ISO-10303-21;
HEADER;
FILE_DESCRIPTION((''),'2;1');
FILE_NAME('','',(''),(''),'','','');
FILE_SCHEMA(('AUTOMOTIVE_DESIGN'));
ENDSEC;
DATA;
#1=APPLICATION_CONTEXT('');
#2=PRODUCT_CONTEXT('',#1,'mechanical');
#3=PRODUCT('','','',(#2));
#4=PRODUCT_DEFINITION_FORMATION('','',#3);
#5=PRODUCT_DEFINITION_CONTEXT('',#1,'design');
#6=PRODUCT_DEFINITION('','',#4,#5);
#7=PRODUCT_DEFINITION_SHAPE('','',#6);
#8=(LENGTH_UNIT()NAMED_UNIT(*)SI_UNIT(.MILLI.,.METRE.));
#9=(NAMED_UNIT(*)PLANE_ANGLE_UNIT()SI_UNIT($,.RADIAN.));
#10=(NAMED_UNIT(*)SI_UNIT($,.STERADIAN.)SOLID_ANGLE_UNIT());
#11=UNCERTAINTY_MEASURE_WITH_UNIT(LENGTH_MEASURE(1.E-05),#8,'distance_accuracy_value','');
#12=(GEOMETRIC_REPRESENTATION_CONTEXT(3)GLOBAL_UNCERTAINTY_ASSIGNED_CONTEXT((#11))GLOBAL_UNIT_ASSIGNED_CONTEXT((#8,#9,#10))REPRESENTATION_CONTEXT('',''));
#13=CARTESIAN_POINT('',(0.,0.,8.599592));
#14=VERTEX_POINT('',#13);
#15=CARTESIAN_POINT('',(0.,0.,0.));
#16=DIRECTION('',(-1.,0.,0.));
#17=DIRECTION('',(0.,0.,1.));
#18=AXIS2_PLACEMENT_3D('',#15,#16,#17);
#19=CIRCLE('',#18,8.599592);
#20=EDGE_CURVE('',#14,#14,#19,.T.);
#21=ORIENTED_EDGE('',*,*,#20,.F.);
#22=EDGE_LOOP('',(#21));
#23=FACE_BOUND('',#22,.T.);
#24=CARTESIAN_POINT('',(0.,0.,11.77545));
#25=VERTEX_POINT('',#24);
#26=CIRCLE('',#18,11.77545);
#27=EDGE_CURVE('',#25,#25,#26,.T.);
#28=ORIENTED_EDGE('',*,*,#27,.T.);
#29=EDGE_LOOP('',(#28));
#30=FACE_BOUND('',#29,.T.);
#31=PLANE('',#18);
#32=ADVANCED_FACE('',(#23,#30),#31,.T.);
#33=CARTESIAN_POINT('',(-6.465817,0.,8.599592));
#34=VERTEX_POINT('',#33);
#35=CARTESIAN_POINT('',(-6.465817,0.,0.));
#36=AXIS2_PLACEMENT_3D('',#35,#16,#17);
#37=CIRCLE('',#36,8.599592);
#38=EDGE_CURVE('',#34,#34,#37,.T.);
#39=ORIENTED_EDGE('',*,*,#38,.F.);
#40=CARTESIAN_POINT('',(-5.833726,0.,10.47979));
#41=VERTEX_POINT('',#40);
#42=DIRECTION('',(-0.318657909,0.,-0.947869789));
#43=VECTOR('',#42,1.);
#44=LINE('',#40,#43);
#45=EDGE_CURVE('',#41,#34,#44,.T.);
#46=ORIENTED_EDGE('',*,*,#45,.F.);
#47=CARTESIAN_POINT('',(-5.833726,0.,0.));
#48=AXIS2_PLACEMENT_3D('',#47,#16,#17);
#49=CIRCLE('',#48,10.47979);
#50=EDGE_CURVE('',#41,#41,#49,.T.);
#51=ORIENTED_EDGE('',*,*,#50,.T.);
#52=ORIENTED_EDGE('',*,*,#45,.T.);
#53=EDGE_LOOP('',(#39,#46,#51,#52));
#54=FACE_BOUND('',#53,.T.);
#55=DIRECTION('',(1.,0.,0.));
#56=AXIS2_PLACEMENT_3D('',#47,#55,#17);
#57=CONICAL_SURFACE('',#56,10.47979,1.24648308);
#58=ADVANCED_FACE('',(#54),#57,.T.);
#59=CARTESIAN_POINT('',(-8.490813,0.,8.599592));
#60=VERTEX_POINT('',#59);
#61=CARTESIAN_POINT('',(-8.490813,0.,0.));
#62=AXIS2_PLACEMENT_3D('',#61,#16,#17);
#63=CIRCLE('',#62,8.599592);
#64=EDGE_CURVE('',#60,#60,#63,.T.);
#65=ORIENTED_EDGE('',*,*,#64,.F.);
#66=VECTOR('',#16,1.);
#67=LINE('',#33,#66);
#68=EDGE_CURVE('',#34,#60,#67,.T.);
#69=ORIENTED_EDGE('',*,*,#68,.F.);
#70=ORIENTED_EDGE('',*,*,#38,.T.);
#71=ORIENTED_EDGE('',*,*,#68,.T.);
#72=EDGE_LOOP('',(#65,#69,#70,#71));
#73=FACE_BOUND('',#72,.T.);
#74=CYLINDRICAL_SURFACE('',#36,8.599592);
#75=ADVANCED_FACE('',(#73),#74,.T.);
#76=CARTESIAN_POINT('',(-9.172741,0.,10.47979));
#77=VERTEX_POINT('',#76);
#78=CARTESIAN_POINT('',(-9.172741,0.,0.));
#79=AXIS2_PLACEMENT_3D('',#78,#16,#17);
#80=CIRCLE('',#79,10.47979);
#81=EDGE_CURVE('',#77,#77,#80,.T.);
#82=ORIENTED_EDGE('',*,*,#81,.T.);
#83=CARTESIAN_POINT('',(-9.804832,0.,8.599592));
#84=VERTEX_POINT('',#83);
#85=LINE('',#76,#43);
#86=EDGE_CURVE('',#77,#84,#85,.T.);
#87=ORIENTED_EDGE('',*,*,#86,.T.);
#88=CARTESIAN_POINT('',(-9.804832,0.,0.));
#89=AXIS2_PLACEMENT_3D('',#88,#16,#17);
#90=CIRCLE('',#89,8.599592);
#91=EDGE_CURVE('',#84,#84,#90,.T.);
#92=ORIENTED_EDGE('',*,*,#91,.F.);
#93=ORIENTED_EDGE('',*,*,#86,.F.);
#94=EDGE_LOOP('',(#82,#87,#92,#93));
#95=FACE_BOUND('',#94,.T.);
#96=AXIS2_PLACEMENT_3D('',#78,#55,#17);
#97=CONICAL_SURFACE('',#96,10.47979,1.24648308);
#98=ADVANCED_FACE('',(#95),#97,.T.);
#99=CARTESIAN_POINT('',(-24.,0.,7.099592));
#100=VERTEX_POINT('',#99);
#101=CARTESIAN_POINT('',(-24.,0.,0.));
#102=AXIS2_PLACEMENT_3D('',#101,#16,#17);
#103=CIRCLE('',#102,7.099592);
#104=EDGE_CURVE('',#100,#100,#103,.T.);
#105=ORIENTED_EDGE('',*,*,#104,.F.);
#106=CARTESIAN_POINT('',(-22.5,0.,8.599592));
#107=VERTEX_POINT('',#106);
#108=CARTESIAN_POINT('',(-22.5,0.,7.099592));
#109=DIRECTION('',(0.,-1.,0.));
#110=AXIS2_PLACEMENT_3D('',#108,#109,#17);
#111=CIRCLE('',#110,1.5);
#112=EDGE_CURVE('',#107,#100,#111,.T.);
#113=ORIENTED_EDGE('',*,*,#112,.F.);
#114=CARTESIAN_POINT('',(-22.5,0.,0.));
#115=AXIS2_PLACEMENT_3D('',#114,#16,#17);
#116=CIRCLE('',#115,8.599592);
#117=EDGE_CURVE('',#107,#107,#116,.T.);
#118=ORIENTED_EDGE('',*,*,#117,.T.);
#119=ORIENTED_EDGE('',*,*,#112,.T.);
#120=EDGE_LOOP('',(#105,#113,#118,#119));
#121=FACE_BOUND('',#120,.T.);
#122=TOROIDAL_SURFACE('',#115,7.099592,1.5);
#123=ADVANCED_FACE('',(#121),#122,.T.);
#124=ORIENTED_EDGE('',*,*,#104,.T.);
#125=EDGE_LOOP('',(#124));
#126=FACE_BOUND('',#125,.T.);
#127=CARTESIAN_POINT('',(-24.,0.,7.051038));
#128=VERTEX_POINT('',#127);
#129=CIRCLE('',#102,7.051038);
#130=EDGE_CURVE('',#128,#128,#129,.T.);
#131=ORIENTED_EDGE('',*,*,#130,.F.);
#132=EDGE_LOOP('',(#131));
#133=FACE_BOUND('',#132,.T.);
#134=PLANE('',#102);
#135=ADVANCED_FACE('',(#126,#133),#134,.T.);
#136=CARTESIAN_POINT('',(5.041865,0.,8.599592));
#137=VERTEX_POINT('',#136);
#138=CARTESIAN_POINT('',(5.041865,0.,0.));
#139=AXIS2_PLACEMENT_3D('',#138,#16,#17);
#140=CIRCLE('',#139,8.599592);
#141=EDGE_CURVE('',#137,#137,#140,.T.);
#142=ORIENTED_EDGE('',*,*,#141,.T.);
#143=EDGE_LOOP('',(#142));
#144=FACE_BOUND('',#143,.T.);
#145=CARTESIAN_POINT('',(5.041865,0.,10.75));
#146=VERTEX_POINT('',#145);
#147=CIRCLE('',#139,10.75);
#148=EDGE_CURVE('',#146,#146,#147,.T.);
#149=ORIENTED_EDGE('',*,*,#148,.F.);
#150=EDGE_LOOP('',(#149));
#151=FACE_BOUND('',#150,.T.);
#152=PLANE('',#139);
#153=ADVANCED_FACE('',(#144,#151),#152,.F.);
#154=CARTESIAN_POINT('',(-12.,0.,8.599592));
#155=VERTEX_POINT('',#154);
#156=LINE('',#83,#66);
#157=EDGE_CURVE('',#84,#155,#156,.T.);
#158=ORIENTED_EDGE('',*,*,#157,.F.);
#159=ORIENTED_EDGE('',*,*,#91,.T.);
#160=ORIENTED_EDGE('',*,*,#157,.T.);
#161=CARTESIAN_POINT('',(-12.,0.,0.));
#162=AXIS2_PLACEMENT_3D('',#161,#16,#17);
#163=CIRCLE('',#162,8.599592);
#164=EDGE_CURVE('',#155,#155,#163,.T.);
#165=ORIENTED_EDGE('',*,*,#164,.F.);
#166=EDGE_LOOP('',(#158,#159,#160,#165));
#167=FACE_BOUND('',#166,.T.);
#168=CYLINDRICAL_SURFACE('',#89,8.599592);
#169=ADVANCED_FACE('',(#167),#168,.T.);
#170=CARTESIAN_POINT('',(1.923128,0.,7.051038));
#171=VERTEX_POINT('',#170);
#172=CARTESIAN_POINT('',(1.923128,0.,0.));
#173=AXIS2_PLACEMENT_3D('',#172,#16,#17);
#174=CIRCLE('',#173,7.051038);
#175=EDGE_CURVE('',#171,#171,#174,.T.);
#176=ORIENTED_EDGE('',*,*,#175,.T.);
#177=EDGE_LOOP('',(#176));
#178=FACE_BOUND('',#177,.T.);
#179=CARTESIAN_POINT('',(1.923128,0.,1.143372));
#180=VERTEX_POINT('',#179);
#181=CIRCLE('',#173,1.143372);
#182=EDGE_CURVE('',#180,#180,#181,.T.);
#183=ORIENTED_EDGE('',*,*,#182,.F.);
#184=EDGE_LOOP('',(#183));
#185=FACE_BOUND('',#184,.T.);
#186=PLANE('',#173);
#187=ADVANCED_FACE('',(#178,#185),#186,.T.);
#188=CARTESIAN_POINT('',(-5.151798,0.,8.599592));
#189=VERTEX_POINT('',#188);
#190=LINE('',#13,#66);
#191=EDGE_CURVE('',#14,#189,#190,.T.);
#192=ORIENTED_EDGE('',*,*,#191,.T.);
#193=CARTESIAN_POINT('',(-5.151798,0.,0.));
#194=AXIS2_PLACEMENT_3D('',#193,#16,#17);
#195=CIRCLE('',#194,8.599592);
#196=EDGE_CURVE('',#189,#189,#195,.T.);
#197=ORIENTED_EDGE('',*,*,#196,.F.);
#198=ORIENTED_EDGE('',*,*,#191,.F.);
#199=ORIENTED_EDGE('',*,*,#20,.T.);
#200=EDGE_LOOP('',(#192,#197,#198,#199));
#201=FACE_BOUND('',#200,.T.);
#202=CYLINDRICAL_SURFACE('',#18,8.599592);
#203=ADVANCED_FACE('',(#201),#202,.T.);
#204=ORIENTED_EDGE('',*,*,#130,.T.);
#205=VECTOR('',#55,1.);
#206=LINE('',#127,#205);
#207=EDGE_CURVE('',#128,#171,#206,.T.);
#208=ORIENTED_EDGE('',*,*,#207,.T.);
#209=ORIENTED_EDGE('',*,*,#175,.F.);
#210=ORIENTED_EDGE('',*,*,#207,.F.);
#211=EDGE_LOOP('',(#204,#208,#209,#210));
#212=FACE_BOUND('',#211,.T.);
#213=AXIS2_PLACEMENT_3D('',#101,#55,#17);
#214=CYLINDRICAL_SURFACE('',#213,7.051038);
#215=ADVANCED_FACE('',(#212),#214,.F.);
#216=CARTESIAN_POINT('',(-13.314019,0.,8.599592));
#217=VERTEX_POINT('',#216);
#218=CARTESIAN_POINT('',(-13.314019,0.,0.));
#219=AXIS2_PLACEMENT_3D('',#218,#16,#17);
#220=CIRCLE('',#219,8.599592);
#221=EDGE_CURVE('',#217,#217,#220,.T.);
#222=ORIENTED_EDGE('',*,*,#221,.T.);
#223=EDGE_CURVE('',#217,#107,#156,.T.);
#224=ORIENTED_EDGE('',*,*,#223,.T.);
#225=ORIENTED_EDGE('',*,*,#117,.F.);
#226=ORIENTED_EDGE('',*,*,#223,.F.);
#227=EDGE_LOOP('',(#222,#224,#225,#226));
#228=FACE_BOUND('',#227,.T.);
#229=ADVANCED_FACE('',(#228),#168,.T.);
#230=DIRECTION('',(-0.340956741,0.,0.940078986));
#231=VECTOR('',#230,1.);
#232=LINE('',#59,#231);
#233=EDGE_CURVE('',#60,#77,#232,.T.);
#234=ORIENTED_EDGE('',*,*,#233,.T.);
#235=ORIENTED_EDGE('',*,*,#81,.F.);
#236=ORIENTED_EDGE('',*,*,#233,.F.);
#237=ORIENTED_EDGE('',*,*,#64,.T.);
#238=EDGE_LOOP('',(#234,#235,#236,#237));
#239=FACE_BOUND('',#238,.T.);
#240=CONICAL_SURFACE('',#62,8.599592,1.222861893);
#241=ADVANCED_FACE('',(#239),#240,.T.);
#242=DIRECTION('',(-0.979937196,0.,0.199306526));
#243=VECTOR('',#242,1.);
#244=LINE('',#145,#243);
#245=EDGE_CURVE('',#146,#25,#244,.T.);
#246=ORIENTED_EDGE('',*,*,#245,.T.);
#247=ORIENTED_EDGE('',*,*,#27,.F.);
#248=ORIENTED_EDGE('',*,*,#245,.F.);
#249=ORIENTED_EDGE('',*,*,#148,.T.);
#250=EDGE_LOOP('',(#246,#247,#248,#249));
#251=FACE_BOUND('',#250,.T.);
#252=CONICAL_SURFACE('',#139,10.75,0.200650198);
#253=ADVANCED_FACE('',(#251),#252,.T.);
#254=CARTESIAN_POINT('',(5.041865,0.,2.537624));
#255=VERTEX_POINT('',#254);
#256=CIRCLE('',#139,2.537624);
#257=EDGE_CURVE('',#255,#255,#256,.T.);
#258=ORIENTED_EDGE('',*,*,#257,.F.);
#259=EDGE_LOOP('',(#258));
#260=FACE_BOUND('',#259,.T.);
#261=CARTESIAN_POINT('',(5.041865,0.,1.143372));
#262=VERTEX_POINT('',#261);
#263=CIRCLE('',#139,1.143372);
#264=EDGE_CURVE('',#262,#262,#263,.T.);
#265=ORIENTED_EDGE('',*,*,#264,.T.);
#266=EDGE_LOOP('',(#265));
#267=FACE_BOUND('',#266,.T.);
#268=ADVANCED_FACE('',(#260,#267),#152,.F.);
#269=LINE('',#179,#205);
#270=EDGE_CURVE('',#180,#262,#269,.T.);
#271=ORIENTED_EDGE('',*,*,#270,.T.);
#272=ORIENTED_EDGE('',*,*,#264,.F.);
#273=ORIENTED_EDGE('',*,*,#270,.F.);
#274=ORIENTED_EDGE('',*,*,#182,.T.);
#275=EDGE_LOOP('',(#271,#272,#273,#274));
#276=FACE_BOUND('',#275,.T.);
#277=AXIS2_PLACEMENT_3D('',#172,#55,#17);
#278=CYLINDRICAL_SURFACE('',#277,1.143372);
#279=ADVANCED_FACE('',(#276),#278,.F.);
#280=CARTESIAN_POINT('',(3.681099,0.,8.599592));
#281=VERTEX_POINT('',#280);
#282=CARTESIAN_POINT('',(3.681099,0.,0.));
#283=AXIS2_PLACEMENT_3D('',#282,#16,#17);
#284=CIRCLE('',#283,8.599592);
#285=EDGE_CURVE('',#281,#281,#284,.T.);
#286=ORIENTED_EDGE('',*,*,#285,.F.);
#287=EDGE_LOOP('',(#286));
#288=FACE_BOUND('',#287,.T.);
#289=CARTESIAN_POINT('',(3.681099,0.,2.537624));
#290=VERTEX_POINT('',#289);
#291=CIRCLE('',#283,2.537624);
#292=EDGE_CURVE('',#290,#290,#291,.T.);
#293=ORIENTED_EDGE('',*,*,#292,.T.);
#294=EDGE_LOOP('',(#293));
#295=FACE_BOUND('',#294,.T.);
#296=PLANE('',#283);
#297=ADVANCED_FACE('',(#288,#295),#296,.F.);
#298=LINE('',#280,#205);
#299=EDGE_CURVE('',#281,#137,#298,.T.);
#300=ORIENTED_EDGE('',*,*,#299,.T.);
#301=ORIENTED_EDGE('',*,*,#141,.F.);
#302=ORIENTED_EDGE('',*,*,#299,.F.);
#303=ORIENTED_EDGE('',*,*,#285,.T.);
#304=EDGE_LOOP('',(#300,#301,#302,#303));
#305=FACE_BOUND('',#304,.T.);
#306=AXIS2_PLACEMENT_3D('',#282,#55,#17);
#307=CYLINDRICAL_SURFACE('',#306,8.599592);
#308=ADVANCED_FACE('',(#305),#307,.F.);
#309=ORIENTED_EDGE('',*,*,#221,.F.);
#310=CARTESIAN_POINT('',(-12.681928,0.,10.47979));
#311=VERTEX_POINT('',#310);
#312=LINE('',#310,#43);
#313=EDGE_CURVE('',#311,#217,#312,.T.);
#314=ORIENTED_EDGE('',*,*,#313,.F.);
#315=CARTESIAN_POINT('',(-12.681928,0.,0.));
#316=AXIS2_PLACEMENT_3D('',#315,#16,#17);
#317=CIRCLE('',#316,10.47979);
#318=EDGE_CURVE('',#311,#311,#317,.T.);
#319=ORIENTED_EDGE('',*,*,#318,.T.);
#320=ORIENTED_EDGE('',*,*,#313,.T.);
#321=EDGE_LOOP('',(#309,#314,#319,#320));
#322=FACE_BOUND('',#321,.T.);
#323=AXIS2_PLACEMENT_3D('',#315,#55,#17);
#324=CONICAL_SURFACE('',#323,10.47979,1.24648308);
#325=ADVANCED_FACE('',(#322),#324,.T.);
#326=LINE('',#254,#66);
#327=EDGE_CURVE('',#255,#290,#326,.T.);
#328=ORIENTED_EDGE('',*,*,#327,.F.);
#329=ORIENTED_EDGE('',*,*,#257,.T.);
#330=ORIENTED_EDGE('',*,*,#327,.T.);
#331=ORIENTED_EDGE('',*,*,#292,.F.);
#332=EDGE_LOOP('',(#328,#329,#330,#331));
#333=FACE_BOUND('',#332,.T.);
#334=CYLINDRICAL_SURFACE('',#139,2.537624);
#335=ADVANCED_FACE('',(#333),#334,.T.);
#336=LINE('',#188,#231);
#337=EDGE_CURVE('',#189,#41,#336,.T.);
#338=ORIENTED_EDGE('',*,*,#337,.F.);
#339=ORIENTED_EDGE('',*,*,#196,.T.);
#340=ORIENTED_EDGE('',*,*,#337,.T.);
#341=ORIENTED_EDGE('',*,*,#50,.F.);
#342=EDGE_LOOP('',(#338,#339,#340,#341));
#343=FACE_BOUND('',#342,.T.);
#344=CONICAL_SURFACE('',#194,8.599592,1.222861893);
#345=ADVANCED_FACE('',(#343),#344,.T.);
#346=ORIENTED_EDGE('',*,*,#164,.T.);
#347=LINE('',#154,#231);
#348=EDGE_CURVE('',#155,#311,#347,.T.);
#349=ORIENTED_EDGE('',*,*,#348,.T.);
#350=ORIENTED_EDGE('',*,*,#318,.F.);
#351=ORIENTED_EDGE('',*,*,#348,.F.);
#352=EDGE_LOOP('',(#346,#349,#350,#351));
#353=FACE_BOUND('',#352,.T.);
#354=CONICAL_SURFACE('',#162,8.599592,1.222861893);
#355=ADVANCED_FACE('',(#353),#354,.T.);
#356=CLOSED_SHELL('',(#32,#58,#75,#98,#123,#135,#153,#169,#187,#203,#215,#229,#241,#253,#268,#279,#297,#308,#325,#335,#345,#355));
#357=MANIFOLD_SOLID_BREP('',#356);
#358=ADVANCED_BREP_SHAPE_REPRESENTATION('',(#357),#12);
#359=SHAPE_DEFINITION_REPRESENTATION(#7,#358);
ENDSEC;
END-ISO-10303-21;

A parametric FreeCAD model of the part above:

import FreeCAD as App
import Part
import Sketcher
from FreeCAD import Vector


def edges_at(feature, points):
    """Names of the edges that pass closest to the given points."""
    edges = feature.Shape.Edges
    near = lambda p: min(range(len(edges)), key=lambda i: edges[i].distToShape(Part.Vertex(*p))[0])
    return sorted({f"Edge{near(p) + 1}" for p in points})


def add_polygon(sketch, points):
    """Adds a closed chain of lines whose ends are joined by coincident constraints."""
    first, n = sketch.GeometryCount, len(points)
    for a, b in zip(points, points[1:] + points[:1]):
        sketch.addGeometry(Part.LineSegment(App.Vector(*a, 0), App.Vector(*b, 0)), False)
    for i in range(n):
        sketch.addConstraint(Sketcher.Constraint("Coincident", first + i, 2, first + (i + 1) % n, 1))

doc = App.newDocument("Part")
body = doc.addObject("PartDesign::Body", "Body")

# Sketch on XZ plane
sketch1 = body.newObject("Sketcher::SketchObject", "Sketch")
sketch1.AttachmentSupport = (doc.getObject("XZ_Plane"), [""])
sketch1.MapMode = "FlatFace"
add_polygon(sketch1, [(-9.172741, 10.47979), (-9.804832, 8.599592), (-12, 8.599592), (-12.681928, 10.47979), (-13.314019, 8.599592), (-24, 8.599592), (-24, 7.051038), (1.923128, 7.051038), (1.923128, 1.143372), (5.041865, 1.143372), (5.041865, 2.537624), (3.681099, 2.537624), (3.681099, 8.599592), (5.041865, 8.599592), (5.041865, 10.75), (0, 11.77545), (0, 8.599592), (-5.151798, 8.599592), (-5.833726, 10.47979), (-6.465817, 8.599592), (-8.490813, 8.599592)])  # lines 0-20
sketch1.addConstraint(Sketcher.Constraint("Horizontal", 1))
sketch1.addConstraint(Sketcher.Constraint("Horizontal", 4))
sketch1.addConstraint(Sketcher.Constraint("Vertical", 5))
sketch1.addConstraint(Sketcher.Constraint("Horizontal", 6))
sketch1.addConstraint(Sketcher.Constraint("Vertical", 7))
sketch1.addConstraint(Sketcher.Constraint("Horizontal", 8))
sketch1.addConstraint(Sketcher.Constraint("Vertical", 9))
sketch1.addConstraint(Sketcher.Constraint("Horizontal", 10))
sketch1.addConstraint(Sketcher.Constraint("Vertical", 11))
sketch1.addConstraint(Sketcher.Constraint("Horizontal", 12))
sketch1.addConstraint(Sketcher.Constraint("Vertical", 13))
sketch1.addConstraint(Sketcher.Constraint("Vertical", 15))
sketch1.addConstraint(Sketcher.Constraint("Horizontal", 16))
sketch1.addConstraint(Sketcher.Constraint("Horizontal", 19))
sketch1.addConstraint(Sketcher.Constraint("PointOnObject", 14, 2, -2))
sketch1.addConstraint(Sketcher.Constraint("Parallel", 0, 3))
sketch1.addConstraint(Sketcher.Constraint("Parallel", 2, 17))
sketch1.addConstraint(Sketcher.Constraint("Parallel", 3, 18))
sketch1.addConstraint(Sketcher.Constraint("Parallel", 17, 20))
sketch1.addConstraint(Sketcher.Constraint("Horizontal", 1, 2, 3, 2))
sketch1.addConstraint(Sketcher.Constraint("Horizontal", 4, 2, 11, 2))
sketch1.addConstraint(Sketcher.Constraint("Horizontal", 12, 2, 15, 2))
sketch1.addConstraint(Sketcher.Constraint("Horizontal", 2, 2, 17, 2))
sketch1.addConstraint(Sketcher.Constraint("Horizontal", 16, 2, 18, 2))
sketch1.addConstraint(Sketcher.Constraint("Horizontal", 17, 2, 20, 2))
sketch1.addConstraint(Sketcher.Constraint("Vertical", 9, 2, 12, 2))
sketch1.addConstraint(Sketcher.Constraint("DistanceX", 1, 2, -1, 1, 12.0))
sketch1.addConstraint(Sketcher.Constraint("DistanceX", 4, 2, -1, 1, 24.0))
sketch1.addConstraint(Sketcher.Constraint("DistanceY", -1, 1, 13, 2, 10.75))
sketch1.addConstraint(Sketcher.Constraint("DistanceX", 16, 2, 16, 1, 5.151798))
sketch1.addConstraint(Sketcher.Constraint("DistanceX", 1, 2, 1, 1, 2.195168))
sketch1.addConstraint(Sketcher.Constraint("DistanceX", 4, 2, 4, 1, 10.685981))
sketch1.addConstraint(Sketcher.Constraint("DistanceY", 13, 1, 13, 2, 2.150408))
sketch1.addConstraint(Sketcher.Constraint("DistanceX", -1, 1, 10, 2, 3.681099))
sketch1.addConstraint(Sketcher.Constraint("Distance", 14, 5.14509))
sketch1.addConstraint(Sketcher.Constraint("DistanceX", 6, 1, 6, 2, 25.923128))
sketch1.addConstraint(Sketcher.Constraint("DistanceX", 8, 1, 8, 2, 3.118737))
sketch1.addConstraint(Sketcher.Constraint("DistanceY", 5, 2, 5, 1, 1.548554))
sketch1.addConstraint(Sketcher.Constraint("DistanceY", 7, 2, 7, 1, 5.907666))
sketch1.addConstraint(Sketcher.Constraint("DistanceY", 9, 1, 9, 2, 1.394252))
sketch1.addConstraint(Sketcher.Constraint("DistanceY", -1, 1, 2, 2, 10.47979))
sketch1.addConstraint(Sketcher.Constraint("DistanceX", 20, 2, -1, 1, 9.172741))
revolution = body.newObject("PartDesign::Revolution", "Revolution")
revolution.Profile = sketch1
revolution.ReferenceAxis = (sketch1, ["H_Axis"])
revolution.Angle = 360
doc.recompute()

fillet = body.newObject("PartDesign::Fillet", "Fillet")
fillet.Base = (revolution, edges_at(revolution, [(-24, 0, -8.6)]))
fillet.Radius = 1.5

doc.recompute()
